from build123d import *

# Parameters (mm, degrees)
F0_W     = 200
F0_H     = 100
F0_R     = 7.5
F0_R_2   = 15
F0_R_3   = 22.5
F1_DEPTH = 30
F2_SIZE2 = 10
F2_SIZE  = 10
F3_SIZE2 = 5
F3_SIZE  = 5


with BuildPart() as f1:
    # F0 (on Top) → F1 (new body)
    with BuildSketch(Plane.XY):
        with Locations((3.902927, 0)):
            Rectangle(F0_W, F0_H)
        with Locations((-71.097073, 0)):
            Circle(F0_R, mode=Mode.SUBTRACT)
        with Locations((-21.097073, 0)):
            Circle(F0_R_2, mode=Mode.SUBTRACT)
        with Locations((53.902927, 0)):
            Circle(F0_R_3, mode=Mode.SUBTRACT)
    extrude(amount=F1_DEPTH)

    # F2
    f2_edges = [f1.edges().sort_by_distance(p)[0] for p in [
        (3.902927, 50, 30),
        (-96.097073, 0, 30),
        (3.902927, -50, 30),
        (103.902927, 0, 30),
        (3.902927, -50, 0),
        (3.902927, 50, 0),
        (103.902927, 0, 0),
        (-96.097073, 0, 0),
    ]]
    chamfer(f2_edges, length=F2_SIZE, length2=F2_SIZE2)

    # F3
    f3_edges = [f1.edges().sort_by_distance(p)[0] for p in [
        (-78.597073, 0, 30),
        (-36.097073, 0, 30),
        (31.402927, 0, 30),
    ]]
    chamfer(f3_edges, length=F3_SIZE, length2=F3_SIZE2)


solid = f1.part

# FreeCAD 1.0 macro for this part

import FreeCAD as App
import Part
import Sketcher

V = App.Vector
Q = App.Units.Quantity


def edges_at(feature, points):
    """Names of the edges that pass closest to the given points."""
    edges = feature.Shape.Edges
    near = lambda p: min(range(len(edges)), key=lambda i: edges[i].distToShape(Part.Vertex(*p))[0])
    return sorted({f"Edge{near(p) + 1}" for p in points})

doc = App.newDocument("Part")
body = doc.addObject("PartDesign::Body", "Body")

# Sketch on XY plane
sketch1 = doc.addObject("Sketcher::SketchObject", "Sketch")
body.addObject(sketch1)
sketch1.AttachmentSupport = (doc.XY_Plane, [""])
sketch1.MapMode = "FlatFace"
sketch1.addGeometry([
    Part.LineSegment(V(-96, 50, 0), V(-96, -50, 0)),  # 0
    Part.LineSegment(V(-96, -50, 0), V(104, -50, 0)),  # 1
    Part.LineSegment(V(104, -50, 0), V(104, 50, 0)),  # 2
    Part.LineSegment(V(104, 50, 0), V(-96, 50, 0)),  # 3
    Part.Circle(V(-71, 0, 0), V(0, 0, 1), 8),  # 4
    Part.Circle(V(-21, 0, 0), V(0, 0, 1), 15),  # 5
    Part.Circle(V(54, 0, 0), V(0, 0, 1), 22),  # 6
], False)
sketch1.addConstraint([
    Sketcher.Constraint("Coincident", 0, 2, 1, 1),
    Sketcher.Constraint("Coincident", 1, 2, 2, 1),
    Sketcher.Constraint("Coincident", 2, 2, 3, 1),
    Sketcher.Constraint("Coincident", 3, 2, 0, 1),
    Sketcher.Constraint("Vertical", 0),
    Sketcher.Constraint("Horizontal", 1),
    Sketcher.Constraint("Vertical", 2),
    Sketcher.Constraint("Horizontal", 3),
    Sketcher.Constraint("PointOnObject", 4, 3, -1),
    Sketcher.Constraint("PointOnObject", 5, 3, -1),
    Sketcher.Constraint("PointOnObject", 6, 3, -1),
    Sketcher.Constraint("Diameter", 4, Q("15 mm")),
    Sketcher.Constraint("Diameter", 5, Q("30 mm")),
    Sketcher.Constraint("Diameter", 6, Q("45 mm")),
    Sketcher.Constraint("DistanceX", 1, 1, 1, 2, Q("200 mm")),
    Sketcher.Constraint("DistanceY", 0, 2, 0, 1, Q("100 mm")),
    Sketcher.Constraint("DistanceY", 0, 2, -1, 1, Q("50 mm")),
    Sketcher.Constraint("DistanceX", 4, 3, 5, 3, Q("50 mm")),
    Sketcher.Constraint("DistanceX", 5, 3, 6, 3, Q("75 mm")),
    Sketcher.Constraint("DistanceX", 0, 2, 4, 3, Q("25 mm")),
    Sketcher.Constraint("DistanceX", 4, 3, -1, 1, Q("71.097073 mm")),
])
pad1 = doc.addObject("PartDesign::Pad", "Pad")
body.addObject(pad1)
pad1.Profile = sketch1
pad1.Length = 30
doc.recompute()

chamfer = doc.addObject("PartDesign::Chamfer", "Chamfer")
body.addObject(chamfer)
chamfer.Base = (pad1, edges_at(pad1, [
    (3.903, 50, 30),
    (-96.097, 0, 30),
    (3.903, -50, 30),
    (103.903, 0, 30),
    (3.903, -50, 0),
    (3.903, 50, 0),
    (103.903, 0, 0),
    (-96.097, 0, 0),
]))
chamfer.ChamferType = "Two distances"
chamfer.Size = 10
chamfer.Size2 = 10
doc.recompute()

chamfer2 = doc.addObject("PartDesign::Chamfer", "Chamfer001")
body.addObject(chamfer2)
chamfer2.Base = (chamfer, edges_at(chamfer, [(-78.597, 0, 30), (-36.097, 0, 30), (31.403, 0, 30)]))
chamfer2.ChamferType = "Two distances"
chamfer2.Size = 5
chamfer2.Size2 = 5

doc.recompute()
